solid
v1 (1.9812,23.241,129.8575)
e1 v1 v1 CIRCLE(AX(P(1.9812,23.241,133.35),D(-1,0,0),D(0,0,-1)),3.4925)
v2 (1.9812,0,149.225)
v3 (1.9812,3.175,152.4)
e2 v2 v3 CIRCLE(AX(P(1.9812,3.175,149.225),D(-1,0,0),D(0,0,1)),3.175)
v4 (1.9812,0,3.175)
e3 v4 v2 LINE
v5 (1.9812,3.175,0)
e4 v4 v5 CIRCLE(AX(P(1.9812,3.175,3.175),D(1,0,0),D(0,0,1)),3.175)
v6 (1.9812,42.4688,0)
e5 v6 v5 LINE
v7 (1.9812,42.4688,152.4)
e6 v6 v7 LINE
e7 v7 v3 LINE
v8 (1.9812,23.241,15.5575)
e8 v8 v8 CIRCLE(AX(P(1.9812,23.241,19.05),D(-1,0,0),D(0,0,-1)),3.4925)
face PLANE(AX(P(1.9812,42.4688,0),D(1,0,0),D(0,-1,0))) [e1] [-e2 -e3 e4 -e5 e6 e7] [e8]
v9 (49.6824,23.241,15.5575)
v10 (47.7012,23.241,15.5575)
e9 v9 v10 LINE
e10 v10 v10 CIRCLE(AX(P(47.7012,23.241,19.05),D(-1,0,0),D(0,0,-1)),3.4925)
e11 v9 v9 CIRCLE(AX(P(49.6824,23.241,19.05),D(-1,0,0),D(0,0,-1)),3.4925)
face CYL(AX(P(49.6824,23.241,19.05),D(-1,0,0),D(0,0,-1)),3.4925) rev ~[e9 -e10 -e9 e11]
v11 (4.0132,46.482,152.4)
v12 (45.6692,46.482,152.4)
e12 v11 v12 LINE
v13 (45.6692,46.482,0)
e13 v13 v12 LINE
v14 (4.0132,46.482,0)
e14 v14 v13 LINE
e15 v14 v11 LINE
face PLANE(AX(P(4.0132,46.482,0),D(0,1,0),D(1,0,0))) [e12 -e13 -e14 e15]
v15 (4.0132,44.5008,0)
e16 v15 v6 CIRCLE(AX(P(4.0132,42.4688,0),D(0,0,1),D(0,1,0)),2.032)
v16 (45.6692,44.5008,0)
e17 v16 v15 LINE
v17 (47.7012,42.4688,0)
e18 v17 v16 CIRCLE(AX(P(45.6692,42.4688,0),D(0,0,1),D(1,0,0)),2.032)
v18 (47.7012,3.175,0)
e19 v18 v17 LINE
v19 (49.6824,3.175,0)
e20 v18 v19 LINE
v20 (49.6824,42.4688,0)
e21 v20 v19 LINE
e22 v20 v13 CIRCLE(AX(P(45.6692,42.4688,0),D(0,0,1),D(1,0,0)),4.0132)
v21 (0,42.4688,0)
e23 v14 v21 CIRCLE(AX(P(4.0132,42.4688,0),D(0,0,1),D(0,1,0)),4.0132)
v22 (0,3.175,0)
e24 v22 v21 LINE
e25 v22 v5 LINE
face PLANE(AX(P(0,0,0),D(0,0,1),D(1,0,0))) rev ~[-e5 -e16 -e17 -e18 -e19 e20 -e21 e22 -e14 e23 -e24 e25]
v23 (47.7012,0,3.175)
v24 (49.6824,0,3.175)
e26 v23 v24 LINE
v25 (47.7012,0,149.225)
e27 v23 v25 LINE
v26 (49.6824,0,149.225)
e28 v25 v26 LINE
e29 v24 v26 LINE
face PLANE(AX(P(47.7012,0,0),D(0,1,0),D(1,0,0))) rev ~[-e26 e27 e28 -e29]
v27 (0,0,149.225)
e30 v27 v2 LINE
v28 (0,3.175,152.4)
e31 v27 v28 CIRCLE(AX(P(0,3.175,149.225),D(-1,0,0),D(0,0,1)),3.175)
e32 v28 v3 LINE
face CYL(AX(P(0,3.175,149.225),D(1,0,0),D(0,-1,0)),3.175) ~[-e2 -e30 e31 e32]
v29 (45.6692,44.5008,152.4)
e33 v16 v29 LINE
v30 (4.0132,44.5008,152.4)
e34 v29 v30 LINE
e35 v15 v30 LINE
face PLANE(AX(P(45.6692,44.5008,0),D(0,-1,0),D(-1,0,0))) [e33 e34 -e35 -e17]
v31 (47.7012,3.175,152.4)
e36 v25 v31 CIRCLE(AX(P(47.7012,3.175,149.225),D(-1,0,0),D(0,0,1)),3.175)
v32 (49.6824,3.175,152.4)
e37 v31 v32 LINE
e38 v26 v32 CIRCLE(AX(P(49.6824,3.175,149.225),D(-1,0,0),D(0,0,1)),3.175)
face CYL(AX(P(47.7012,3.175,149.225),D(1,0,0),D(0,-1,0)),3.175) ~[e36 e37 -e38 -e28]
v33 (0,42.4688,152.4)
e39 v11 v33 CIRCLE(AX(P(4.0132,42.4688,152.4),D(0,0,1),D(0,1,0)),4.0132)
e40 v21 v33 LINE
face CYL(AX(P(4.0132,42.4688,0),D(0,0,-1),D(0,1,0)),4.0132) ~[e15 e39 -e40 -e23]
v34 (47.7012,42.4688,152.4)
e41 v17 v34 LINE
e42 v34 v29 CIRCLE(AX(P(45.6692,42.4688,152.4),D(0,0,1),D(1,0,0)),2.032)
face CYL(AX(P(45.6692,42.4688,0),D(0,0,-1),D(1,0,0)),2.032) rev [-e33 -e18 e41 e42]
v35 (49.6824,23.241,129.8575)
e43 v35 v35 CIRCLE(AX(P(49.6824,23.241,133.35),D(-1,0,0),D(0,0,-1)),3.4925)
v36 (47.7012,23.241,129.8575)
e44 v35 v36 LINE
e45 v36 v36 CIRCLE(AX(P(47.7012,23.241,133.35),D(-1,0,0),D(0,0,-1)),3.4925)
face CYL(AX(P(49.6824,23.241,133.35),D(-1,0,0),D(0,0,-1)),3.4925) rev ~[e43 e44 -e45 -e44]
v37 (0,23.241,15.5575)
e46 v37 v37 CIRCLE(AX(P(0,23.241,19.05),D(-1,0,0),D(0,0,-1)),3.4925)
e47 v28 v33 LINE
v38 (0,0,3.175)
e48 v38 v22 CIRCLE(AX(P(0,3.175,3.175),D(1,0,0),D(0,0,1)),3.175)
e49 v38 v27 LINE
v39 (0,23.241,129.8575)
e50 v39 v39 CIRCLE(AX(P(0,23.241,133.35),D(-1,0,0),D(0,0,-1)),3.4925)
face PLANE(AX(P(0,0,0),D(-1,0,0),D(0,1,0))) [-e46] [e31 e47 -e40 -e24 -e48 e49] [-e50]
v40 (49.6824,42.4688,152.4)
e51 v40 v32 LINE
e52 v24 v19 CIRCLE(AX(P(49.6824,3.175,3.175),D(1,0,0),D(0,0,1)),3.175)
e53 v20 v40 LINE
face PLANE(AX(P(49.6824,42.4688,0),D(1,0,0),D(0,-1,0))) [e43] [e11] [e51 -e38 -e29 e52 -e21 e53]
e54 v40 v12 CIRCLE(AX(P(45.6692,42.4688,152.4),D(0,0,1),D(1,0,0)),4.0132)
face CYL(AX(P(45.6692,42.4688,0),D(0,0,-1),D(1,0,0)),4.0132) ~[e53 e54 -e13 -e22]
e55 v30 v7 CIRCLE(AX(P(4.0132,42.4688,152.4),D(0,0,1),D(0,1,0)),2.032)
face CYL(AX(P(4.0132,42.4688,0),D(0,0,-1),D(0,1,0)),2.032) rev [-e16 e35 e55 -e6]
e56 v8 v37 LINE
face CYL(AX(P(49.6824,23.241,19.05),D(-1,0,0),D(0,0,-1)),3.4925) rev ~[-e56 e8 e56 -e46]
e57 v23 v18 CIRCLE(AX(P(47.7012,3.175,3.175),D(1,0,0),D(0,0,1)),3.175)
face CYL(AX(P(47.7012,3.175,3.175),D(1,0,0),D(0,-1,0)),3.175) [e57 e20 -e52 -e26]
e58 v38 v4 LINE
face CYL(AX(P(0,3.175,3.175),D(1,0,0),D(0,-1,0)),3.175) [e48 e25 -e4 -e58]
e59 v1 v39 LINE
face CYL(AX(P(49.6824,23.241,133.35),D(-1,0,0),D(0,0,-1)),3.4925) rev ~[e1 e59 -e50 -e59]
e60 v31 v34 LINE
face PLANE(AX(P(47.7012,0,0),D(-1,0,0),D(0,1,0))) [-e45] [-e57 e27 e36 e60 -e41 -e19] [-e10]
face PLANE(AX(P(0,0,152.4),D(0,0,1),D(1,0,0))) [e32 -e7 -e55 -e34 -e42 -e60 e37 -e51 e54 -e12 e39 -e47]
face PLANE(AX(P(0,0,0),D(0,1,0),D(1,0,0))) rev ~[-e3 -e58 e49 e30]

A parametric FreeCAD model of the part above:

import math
import FreeCAD as App
import Part
import Sketcher

V = App.Vector
Q = App.Units.Quantity


def edges_at(feature, points):
    """Names of the edges that pass closest to the given points."""
    edges = feature.Shape.Edges
    near = lambda p: min(range(len(edges)), key=lambda i: edges[i].distToShape(Part.Vertex(*p))[0])
    return sorted({f"Edge{near(p) + 1}" for p in points})

doc = App.newDocument("Part")
body = doc.addObject("PartDesign::Body", "Body")

# Sketch on XY plane
sketch1 = body.newObject("Sketcher::SketchObject", "Sketch")
sketch1.AttachmentSupport = (doc.getObject("XY_Plane"), [""])
sketch1.MapMode = "FlatFace"
sketch1.addGeometry(Part.LineSegment(V(0, 42.4688, 0), V(0, 0, 0)), False)
sketch1.addGeometry(Part.LineSegment(V(0, 0, 0), V(1.9812, 0, 0)), False)
sketch1.addGeometry(Part.LineSegment(V(1.9812, 0, 0), V(1.9812, 42.4688, 0)), False)
sketch1.addGeometry(Part.ArcOfCircle(Part.Circle(V(4.0132, 42.4688, 0), V(0, 0, 1), 2.032), math.radians(90), math.radians(180)), False)
sketch1.addGeometry(Part.LineSegment(V(4.0132, 44.5008, 0), V(45.6692, 44.5008, 0)), False)
sketch1.addGeometry(Part.ArcOfCircle(Part.Circle(V(45.6692, 42.4688, 0), V(0, 0, 1), 2.032), math.radians(0), math.radians(90)), False)
sketch1.addGeometry(Part.LineSegment(V(47.7012, 42.4688, 0), V(47.7012, 0, 0)), False)
sketch1.addGeometry(Part.LineSegment(V(47.7012, 0, 0), V(49.6824, 0, 0)), False)
sketch1.addGeometry(Part.LineSegment(V(49.6824, 0, 0), V(49.6824, 42.4688, 0)), False)
sketch1.addGeometry(Part.ArcOfCircle(Part.Circle(V(45.6692, 42.4688, 0), V(0, 0, 1), 4.0132), math.radians(0), math.radians(90)), False)
sketch1.addGeometry(Part.LineSegment(V(45.6692, 46.482, 0), V(4.0132, 46.482, 0)), False)
sketch1.addGeometry(Part.ArcOfCircle(Part.Circle(V(4.0132, 42.4688, 0), V(0, 0, 1), 4.0132), math.radians(90), math.radians(180)), False)
sketch1.addConstraint(Sketcher.Constraint("Coincident", 0, 2, 1, 1))
sketch1.addConstraint(Sketcher.Constraint("Coincident", 1, 2, 2, 1))
sketch1.addConstraint(Sketcher.Constraint("Tangent", 2, 2, 3, 2))
sketch1.addConstraint(Sketcher.Constraint("Tangent", 3, 1, 4, 1))
sketch1.addConstraint(Sketcher.Constraint("Tangent", 4, 2, 5, 2))
sketch1.addConstraint(Sketcher.Constraint("Tangent", 5, 1, 6, 1))
sketch1.addConstraint(Sketcher.Constraint("Coincident", 6, 2, 7, 1))
sketch1.addConstraint(Sketcher.Constraint("Coincident", 7, 2, 8, 1))
sketch1.addConstraint(Sketcher.Constraint("Tangent", 8, 2, 9, 1))
sketch1.addConstraint(Sketcher.Constraint("Tangent", 9, 2, 10, 1))
sketch1.addConstraint(Sketcher.Constraint("Tangent", 10, 2, 11, 1))
sketch1.addConstraint(Sketcher.Constraint("Tangent", 11, 2, 0, 1))
sketch1.addConstraint(Sketcher.Constraint("Vertical", 0))
sketch1.addConstraint(Sketcher.Constraint("Horizontal", 1))
sketch1.addConstraint(Sketcher.Constraint("Vertical", 2))
sketch1.addConstraint(Sketcher.Constraint("Horizontal", 4))
sketch1.addConstraint(Sketcher.Constraint("Vertical", 6))
sketch1.addConstraint(Sketcher.Constraint("Horizontal", 7))
sketch1.addConstraint(Sketcher.Constraint("Vertical", 8))
sketch1.addConstraint(Sketcher.Constraint("Horizontal", 10))
sketch1.addConstraint(Sketcher.Constraint("Coincident", 0, 2, -1, 1))
sketch1.addConstraint(Sketcher.Constraint("Coincident", 9, 3, 5, 3))
sketch1.addConstraint(Sketcher.Constraint("Coincident", 11, 3, 3, 3))
sketch1.addConstraint(Sketcher.Constraint("Equal", 3, 5))
sketch1.addConstraint(Sketcher.Constraint("PointOnObject", 6, 2, -1))
sketch1.addConstraint(Sketcher.Constraint("Radius", 3, Q("0.08 in")))
sketch1.addConstraint(Sketcher.Constraint("DistanceX", 1, 2, 6, 2, Q("1.8 in")))
sketch1.addConstraint(Sketcher.Constraint("DistanceX", 1, 1, 1, 2, Q("0.078 in")))
sketch1.addConstraint(Sketcher.Constraint("DistanceY", -1, 1, 9, 2, Q("1.83 in")))
pad1 = body.newObject("PartDesign::Pad", "Pad")
pad1.Profile = sketch1
pad1.Length = Q("6 in")
doc.recompute()

fillet = body.newObject("PartDesign::Fillet", "Fillet")
fillet.Base = (pad1, edges_at(pad1, [
    (0.991, 0, 152.4),
    (48.692, 0, 152.4),
    (48.692, 0, 0),
    (0.991, 0, 0),
]))
fillet.Radius = Q("0.125 in")

# Sketch on YZ plane
sketch2 = body.newObject("Sketcher::SketchObject", "Sketch001")
sketch2.AttachmentSupport = (doc.getObject("YZ_Plane"), [""])
sketch2.MapMode = "FlatFace"
sketch2.AttachmentOffset = App.Placement(V(0, 0, 1.956 * 25.4), App.Rotation())
sketch2.addGeometry(Part.Circle(V(23.241, 133.35, 0), V(0, 0, 1), 3.4925), False)
sketch2.addConstraint(Sketcher.Constraint("Diameter", 0, Q("0.275 in")))
sketch2.addConstraint(Sketcher.Constraint("DistanceY", -1, 1, 0, 3, Q("5.25 in")))
sketch2.addConstraint(Sketcher.Constraint("DistanceX", -1, 1, 0, 3, Q("0.915 in")))
doc.recompute()
hole = body.newObject("PartDesign::Hole", "Hole")
hole.Profile = sketch2
hole.ThreadType = "None"
hole.Diameter = Q("0.275 in")
hole.DepthType = "ThroughAll"
doc.recompute()

linearpattern = body.newObject("PartDesign::LinearPattern", "LinearPattern")
linearpattern.Originals = [hole]
linearpattern.Direction = (doc.getObject("Z_Axis"), [""])
linearpattern.Mode = "offset"
linearpattern.Offset = Q("4.5 in")
linearpattern.Occurrences = 2
linearpattern.Reversed = True
body.Tip = linearpattern

doc.recompute()
